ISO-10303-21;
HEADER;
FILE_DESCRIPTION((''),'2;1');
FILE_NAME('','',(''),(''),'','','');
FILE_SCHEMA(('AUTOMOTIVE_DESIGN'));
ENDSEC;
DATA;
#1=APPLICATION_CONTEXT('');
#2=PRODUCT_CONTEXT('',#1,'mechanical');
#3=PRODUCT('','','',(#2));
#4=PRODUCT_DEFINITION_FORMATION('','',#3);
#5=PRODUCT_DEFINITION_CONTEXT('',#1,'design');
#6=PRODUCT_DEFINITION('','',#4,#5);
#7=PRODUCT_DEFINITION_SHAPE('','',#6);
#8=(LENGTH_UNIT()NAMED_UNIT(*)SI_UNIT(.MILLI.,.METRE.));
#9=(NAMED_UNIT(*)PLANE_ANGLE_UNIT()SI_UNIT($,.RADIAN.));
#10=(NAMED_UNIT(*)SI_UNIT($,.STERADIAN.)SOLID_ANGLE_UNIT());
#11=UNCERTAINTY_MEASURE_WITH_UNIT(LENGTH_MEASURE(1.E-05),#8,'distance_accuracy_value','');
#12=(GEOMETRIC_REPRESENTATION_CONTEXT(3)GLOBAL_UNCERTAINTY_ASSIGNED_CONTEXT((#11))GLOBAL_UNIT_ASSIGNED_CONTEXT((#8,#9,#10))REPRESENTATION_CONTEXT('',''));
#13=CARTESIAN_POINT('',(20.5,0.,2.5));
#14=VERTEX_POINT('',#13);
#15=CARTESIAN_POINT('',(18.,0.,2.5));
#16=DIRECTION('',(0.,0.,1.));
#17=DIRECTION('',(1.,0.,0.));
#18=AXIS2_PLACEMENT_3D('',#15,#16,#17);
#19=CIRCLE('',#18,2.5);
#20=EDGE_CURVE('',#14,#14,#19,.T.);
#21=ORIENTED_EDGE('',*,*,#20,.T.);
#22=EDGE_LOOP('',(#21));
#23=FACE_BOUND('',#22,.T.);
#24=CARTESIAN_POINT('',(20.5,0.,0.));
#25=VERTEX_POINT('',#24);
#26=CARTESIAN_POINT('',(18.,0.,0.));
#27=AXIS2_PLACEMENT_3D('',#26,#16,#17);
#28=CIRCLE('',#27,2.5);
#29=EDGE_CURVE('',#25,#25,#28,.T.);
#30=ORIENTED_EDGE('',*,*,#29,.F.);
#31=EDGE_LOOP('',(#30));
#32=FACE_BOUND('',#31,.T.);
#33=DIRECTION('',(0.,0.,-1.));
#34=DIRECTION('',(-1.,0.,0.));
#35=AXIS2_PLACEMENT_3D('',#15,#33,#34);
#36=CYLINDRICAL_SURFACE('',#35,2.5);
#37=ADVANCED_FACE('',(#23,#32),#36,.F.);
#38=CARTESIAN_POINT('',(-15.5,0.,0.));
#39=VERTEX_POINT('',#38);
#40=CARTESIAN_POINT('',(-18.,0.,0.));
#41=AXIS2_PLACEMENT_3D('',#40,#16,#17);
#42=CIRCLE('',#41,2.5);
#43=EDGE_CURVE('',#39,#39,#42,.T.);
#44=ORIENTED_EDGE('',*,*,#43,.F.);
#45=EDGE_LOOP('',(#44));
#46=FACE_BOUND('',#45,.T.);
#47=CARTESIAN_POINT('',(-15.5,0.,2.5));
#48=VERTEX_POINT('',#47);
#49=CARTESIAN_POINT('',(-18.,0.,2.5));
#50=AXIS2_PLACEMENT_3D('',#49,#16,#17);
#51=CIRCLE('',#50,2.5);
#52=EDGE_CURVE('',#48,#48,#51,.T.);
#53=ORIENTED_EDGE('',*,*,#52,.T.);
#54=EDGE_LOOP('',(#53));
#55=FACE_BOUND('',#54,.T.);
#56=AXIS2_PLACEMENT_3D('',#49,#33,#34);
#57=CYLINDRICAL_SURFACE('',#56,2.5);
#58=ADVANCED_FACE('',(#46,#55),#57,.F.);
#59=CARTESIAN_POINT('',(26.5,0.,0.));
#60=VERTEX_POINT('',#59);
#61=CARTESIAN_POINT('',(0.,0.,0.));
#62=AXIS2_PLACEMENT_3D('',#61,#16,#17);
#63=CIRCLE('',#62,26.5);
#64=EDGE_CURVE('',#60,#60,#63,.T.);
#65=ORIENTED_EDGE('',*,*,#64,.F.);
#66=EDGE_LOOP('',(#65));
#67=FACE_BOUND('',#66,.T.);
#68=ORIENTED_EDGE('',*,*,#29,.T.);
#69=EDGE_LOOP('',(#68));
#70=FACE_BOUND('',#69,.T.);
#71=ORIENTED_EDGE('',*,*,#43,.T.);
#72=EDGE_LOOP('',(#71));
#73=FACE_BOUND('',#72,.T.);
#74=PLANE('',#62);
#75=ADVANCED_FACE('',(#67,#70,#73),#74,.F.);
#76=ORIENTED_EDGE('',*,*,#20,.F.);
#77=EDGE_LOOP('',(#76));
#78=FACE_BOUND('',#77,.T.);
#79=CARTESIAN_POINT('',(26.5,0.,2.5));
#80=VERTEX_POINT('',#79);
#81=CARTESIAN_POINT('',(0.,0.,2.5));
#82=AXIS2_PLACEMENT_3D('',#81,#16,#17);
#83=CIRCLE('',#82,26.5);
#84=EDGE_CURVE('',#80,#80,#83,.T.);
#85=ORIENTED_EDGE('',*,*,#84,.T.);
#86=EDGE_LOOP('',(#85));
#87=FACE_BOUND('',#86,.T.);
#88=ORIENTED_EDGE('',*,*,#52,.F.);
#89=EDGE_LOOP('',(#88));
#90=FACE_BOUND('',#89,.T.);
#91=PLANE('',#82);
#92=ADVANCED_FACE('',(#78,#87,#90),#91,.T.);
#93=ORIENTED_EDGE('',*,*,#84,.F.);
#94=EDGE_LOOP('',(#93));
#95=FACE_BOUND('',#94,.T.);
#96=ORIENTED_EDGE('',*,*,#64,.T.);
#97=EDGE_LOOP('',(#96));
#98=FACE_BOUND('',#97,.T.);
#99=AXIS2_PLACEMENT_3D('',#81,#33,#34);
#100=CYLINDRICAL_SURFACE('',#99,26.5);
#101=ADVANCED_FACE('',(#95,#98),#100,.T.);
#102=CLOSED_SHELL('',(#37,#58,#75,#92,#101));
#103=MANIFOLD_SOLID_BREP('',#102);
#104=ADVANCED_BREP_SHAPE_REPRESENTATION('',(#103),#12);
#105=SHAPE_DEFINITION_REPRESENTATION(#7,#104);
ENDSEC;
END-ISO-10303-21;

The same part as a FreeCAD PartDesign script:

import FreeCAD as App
import Part
import Sketcher
Q = App.Units.Quantity

doc = App.newDocument("Part")
body = doc.addObject("PartDesign::Body", "Body")

sketch1 = doc.addObject("Sketcher::SketchObject", "Sketch")
body.addObject(sketch1)
sketch1.AttachmentSupport = (doc.XY_Plane, [""])
sketch1.MapMode = "FlatFace"
sketch1.addGeometry(Part.Circle(App.Vector(0, 0, 0), App.Vector(0, 0, 1), 26.5), False)
sketch1.addGeometry(Part.Circle(App.Vector(-18, 0, 0), App.Vector(0, 0, 1), 2.5), False)
sketch1.addGeometry(Part.Circle(App.Vector(18, 0, 0), App.Vector(0, 0, 1), 2.5), False)
sketch1.addConstraint(Sketcher.Constraint("Coincident", 0, 3, -1, 1))
sketch1.addConstraint(Sketcher.Constraint("Equal", 1, 2))
sketch1.addConstraint(Sketcher.Constraint("Symmetric", 1, 3, 2, 3, -1, 1))
sketch1.addConstraint(Sketcher.Constraint("PointOnObject", 1, 3, -1))
sketch1.addConstraint(Sketcher.Constraint("Diameter", 0, Q("53 mm")))
sketch1.addConstraint(Sketcher.Constraint("Diameter", 1, Q("5 mm")))
sketch1.addConstraint(Sketcher.Constraint("DistanceX", 1, 3, -1, 1, Q("18 mm")))
pad1 = doc.addObject("PartDesign::Pad", "Pad")
body.addObject(pad1)
pad1.Profile = sketch1
pad1.Length = 2.5

doc.recompute()
